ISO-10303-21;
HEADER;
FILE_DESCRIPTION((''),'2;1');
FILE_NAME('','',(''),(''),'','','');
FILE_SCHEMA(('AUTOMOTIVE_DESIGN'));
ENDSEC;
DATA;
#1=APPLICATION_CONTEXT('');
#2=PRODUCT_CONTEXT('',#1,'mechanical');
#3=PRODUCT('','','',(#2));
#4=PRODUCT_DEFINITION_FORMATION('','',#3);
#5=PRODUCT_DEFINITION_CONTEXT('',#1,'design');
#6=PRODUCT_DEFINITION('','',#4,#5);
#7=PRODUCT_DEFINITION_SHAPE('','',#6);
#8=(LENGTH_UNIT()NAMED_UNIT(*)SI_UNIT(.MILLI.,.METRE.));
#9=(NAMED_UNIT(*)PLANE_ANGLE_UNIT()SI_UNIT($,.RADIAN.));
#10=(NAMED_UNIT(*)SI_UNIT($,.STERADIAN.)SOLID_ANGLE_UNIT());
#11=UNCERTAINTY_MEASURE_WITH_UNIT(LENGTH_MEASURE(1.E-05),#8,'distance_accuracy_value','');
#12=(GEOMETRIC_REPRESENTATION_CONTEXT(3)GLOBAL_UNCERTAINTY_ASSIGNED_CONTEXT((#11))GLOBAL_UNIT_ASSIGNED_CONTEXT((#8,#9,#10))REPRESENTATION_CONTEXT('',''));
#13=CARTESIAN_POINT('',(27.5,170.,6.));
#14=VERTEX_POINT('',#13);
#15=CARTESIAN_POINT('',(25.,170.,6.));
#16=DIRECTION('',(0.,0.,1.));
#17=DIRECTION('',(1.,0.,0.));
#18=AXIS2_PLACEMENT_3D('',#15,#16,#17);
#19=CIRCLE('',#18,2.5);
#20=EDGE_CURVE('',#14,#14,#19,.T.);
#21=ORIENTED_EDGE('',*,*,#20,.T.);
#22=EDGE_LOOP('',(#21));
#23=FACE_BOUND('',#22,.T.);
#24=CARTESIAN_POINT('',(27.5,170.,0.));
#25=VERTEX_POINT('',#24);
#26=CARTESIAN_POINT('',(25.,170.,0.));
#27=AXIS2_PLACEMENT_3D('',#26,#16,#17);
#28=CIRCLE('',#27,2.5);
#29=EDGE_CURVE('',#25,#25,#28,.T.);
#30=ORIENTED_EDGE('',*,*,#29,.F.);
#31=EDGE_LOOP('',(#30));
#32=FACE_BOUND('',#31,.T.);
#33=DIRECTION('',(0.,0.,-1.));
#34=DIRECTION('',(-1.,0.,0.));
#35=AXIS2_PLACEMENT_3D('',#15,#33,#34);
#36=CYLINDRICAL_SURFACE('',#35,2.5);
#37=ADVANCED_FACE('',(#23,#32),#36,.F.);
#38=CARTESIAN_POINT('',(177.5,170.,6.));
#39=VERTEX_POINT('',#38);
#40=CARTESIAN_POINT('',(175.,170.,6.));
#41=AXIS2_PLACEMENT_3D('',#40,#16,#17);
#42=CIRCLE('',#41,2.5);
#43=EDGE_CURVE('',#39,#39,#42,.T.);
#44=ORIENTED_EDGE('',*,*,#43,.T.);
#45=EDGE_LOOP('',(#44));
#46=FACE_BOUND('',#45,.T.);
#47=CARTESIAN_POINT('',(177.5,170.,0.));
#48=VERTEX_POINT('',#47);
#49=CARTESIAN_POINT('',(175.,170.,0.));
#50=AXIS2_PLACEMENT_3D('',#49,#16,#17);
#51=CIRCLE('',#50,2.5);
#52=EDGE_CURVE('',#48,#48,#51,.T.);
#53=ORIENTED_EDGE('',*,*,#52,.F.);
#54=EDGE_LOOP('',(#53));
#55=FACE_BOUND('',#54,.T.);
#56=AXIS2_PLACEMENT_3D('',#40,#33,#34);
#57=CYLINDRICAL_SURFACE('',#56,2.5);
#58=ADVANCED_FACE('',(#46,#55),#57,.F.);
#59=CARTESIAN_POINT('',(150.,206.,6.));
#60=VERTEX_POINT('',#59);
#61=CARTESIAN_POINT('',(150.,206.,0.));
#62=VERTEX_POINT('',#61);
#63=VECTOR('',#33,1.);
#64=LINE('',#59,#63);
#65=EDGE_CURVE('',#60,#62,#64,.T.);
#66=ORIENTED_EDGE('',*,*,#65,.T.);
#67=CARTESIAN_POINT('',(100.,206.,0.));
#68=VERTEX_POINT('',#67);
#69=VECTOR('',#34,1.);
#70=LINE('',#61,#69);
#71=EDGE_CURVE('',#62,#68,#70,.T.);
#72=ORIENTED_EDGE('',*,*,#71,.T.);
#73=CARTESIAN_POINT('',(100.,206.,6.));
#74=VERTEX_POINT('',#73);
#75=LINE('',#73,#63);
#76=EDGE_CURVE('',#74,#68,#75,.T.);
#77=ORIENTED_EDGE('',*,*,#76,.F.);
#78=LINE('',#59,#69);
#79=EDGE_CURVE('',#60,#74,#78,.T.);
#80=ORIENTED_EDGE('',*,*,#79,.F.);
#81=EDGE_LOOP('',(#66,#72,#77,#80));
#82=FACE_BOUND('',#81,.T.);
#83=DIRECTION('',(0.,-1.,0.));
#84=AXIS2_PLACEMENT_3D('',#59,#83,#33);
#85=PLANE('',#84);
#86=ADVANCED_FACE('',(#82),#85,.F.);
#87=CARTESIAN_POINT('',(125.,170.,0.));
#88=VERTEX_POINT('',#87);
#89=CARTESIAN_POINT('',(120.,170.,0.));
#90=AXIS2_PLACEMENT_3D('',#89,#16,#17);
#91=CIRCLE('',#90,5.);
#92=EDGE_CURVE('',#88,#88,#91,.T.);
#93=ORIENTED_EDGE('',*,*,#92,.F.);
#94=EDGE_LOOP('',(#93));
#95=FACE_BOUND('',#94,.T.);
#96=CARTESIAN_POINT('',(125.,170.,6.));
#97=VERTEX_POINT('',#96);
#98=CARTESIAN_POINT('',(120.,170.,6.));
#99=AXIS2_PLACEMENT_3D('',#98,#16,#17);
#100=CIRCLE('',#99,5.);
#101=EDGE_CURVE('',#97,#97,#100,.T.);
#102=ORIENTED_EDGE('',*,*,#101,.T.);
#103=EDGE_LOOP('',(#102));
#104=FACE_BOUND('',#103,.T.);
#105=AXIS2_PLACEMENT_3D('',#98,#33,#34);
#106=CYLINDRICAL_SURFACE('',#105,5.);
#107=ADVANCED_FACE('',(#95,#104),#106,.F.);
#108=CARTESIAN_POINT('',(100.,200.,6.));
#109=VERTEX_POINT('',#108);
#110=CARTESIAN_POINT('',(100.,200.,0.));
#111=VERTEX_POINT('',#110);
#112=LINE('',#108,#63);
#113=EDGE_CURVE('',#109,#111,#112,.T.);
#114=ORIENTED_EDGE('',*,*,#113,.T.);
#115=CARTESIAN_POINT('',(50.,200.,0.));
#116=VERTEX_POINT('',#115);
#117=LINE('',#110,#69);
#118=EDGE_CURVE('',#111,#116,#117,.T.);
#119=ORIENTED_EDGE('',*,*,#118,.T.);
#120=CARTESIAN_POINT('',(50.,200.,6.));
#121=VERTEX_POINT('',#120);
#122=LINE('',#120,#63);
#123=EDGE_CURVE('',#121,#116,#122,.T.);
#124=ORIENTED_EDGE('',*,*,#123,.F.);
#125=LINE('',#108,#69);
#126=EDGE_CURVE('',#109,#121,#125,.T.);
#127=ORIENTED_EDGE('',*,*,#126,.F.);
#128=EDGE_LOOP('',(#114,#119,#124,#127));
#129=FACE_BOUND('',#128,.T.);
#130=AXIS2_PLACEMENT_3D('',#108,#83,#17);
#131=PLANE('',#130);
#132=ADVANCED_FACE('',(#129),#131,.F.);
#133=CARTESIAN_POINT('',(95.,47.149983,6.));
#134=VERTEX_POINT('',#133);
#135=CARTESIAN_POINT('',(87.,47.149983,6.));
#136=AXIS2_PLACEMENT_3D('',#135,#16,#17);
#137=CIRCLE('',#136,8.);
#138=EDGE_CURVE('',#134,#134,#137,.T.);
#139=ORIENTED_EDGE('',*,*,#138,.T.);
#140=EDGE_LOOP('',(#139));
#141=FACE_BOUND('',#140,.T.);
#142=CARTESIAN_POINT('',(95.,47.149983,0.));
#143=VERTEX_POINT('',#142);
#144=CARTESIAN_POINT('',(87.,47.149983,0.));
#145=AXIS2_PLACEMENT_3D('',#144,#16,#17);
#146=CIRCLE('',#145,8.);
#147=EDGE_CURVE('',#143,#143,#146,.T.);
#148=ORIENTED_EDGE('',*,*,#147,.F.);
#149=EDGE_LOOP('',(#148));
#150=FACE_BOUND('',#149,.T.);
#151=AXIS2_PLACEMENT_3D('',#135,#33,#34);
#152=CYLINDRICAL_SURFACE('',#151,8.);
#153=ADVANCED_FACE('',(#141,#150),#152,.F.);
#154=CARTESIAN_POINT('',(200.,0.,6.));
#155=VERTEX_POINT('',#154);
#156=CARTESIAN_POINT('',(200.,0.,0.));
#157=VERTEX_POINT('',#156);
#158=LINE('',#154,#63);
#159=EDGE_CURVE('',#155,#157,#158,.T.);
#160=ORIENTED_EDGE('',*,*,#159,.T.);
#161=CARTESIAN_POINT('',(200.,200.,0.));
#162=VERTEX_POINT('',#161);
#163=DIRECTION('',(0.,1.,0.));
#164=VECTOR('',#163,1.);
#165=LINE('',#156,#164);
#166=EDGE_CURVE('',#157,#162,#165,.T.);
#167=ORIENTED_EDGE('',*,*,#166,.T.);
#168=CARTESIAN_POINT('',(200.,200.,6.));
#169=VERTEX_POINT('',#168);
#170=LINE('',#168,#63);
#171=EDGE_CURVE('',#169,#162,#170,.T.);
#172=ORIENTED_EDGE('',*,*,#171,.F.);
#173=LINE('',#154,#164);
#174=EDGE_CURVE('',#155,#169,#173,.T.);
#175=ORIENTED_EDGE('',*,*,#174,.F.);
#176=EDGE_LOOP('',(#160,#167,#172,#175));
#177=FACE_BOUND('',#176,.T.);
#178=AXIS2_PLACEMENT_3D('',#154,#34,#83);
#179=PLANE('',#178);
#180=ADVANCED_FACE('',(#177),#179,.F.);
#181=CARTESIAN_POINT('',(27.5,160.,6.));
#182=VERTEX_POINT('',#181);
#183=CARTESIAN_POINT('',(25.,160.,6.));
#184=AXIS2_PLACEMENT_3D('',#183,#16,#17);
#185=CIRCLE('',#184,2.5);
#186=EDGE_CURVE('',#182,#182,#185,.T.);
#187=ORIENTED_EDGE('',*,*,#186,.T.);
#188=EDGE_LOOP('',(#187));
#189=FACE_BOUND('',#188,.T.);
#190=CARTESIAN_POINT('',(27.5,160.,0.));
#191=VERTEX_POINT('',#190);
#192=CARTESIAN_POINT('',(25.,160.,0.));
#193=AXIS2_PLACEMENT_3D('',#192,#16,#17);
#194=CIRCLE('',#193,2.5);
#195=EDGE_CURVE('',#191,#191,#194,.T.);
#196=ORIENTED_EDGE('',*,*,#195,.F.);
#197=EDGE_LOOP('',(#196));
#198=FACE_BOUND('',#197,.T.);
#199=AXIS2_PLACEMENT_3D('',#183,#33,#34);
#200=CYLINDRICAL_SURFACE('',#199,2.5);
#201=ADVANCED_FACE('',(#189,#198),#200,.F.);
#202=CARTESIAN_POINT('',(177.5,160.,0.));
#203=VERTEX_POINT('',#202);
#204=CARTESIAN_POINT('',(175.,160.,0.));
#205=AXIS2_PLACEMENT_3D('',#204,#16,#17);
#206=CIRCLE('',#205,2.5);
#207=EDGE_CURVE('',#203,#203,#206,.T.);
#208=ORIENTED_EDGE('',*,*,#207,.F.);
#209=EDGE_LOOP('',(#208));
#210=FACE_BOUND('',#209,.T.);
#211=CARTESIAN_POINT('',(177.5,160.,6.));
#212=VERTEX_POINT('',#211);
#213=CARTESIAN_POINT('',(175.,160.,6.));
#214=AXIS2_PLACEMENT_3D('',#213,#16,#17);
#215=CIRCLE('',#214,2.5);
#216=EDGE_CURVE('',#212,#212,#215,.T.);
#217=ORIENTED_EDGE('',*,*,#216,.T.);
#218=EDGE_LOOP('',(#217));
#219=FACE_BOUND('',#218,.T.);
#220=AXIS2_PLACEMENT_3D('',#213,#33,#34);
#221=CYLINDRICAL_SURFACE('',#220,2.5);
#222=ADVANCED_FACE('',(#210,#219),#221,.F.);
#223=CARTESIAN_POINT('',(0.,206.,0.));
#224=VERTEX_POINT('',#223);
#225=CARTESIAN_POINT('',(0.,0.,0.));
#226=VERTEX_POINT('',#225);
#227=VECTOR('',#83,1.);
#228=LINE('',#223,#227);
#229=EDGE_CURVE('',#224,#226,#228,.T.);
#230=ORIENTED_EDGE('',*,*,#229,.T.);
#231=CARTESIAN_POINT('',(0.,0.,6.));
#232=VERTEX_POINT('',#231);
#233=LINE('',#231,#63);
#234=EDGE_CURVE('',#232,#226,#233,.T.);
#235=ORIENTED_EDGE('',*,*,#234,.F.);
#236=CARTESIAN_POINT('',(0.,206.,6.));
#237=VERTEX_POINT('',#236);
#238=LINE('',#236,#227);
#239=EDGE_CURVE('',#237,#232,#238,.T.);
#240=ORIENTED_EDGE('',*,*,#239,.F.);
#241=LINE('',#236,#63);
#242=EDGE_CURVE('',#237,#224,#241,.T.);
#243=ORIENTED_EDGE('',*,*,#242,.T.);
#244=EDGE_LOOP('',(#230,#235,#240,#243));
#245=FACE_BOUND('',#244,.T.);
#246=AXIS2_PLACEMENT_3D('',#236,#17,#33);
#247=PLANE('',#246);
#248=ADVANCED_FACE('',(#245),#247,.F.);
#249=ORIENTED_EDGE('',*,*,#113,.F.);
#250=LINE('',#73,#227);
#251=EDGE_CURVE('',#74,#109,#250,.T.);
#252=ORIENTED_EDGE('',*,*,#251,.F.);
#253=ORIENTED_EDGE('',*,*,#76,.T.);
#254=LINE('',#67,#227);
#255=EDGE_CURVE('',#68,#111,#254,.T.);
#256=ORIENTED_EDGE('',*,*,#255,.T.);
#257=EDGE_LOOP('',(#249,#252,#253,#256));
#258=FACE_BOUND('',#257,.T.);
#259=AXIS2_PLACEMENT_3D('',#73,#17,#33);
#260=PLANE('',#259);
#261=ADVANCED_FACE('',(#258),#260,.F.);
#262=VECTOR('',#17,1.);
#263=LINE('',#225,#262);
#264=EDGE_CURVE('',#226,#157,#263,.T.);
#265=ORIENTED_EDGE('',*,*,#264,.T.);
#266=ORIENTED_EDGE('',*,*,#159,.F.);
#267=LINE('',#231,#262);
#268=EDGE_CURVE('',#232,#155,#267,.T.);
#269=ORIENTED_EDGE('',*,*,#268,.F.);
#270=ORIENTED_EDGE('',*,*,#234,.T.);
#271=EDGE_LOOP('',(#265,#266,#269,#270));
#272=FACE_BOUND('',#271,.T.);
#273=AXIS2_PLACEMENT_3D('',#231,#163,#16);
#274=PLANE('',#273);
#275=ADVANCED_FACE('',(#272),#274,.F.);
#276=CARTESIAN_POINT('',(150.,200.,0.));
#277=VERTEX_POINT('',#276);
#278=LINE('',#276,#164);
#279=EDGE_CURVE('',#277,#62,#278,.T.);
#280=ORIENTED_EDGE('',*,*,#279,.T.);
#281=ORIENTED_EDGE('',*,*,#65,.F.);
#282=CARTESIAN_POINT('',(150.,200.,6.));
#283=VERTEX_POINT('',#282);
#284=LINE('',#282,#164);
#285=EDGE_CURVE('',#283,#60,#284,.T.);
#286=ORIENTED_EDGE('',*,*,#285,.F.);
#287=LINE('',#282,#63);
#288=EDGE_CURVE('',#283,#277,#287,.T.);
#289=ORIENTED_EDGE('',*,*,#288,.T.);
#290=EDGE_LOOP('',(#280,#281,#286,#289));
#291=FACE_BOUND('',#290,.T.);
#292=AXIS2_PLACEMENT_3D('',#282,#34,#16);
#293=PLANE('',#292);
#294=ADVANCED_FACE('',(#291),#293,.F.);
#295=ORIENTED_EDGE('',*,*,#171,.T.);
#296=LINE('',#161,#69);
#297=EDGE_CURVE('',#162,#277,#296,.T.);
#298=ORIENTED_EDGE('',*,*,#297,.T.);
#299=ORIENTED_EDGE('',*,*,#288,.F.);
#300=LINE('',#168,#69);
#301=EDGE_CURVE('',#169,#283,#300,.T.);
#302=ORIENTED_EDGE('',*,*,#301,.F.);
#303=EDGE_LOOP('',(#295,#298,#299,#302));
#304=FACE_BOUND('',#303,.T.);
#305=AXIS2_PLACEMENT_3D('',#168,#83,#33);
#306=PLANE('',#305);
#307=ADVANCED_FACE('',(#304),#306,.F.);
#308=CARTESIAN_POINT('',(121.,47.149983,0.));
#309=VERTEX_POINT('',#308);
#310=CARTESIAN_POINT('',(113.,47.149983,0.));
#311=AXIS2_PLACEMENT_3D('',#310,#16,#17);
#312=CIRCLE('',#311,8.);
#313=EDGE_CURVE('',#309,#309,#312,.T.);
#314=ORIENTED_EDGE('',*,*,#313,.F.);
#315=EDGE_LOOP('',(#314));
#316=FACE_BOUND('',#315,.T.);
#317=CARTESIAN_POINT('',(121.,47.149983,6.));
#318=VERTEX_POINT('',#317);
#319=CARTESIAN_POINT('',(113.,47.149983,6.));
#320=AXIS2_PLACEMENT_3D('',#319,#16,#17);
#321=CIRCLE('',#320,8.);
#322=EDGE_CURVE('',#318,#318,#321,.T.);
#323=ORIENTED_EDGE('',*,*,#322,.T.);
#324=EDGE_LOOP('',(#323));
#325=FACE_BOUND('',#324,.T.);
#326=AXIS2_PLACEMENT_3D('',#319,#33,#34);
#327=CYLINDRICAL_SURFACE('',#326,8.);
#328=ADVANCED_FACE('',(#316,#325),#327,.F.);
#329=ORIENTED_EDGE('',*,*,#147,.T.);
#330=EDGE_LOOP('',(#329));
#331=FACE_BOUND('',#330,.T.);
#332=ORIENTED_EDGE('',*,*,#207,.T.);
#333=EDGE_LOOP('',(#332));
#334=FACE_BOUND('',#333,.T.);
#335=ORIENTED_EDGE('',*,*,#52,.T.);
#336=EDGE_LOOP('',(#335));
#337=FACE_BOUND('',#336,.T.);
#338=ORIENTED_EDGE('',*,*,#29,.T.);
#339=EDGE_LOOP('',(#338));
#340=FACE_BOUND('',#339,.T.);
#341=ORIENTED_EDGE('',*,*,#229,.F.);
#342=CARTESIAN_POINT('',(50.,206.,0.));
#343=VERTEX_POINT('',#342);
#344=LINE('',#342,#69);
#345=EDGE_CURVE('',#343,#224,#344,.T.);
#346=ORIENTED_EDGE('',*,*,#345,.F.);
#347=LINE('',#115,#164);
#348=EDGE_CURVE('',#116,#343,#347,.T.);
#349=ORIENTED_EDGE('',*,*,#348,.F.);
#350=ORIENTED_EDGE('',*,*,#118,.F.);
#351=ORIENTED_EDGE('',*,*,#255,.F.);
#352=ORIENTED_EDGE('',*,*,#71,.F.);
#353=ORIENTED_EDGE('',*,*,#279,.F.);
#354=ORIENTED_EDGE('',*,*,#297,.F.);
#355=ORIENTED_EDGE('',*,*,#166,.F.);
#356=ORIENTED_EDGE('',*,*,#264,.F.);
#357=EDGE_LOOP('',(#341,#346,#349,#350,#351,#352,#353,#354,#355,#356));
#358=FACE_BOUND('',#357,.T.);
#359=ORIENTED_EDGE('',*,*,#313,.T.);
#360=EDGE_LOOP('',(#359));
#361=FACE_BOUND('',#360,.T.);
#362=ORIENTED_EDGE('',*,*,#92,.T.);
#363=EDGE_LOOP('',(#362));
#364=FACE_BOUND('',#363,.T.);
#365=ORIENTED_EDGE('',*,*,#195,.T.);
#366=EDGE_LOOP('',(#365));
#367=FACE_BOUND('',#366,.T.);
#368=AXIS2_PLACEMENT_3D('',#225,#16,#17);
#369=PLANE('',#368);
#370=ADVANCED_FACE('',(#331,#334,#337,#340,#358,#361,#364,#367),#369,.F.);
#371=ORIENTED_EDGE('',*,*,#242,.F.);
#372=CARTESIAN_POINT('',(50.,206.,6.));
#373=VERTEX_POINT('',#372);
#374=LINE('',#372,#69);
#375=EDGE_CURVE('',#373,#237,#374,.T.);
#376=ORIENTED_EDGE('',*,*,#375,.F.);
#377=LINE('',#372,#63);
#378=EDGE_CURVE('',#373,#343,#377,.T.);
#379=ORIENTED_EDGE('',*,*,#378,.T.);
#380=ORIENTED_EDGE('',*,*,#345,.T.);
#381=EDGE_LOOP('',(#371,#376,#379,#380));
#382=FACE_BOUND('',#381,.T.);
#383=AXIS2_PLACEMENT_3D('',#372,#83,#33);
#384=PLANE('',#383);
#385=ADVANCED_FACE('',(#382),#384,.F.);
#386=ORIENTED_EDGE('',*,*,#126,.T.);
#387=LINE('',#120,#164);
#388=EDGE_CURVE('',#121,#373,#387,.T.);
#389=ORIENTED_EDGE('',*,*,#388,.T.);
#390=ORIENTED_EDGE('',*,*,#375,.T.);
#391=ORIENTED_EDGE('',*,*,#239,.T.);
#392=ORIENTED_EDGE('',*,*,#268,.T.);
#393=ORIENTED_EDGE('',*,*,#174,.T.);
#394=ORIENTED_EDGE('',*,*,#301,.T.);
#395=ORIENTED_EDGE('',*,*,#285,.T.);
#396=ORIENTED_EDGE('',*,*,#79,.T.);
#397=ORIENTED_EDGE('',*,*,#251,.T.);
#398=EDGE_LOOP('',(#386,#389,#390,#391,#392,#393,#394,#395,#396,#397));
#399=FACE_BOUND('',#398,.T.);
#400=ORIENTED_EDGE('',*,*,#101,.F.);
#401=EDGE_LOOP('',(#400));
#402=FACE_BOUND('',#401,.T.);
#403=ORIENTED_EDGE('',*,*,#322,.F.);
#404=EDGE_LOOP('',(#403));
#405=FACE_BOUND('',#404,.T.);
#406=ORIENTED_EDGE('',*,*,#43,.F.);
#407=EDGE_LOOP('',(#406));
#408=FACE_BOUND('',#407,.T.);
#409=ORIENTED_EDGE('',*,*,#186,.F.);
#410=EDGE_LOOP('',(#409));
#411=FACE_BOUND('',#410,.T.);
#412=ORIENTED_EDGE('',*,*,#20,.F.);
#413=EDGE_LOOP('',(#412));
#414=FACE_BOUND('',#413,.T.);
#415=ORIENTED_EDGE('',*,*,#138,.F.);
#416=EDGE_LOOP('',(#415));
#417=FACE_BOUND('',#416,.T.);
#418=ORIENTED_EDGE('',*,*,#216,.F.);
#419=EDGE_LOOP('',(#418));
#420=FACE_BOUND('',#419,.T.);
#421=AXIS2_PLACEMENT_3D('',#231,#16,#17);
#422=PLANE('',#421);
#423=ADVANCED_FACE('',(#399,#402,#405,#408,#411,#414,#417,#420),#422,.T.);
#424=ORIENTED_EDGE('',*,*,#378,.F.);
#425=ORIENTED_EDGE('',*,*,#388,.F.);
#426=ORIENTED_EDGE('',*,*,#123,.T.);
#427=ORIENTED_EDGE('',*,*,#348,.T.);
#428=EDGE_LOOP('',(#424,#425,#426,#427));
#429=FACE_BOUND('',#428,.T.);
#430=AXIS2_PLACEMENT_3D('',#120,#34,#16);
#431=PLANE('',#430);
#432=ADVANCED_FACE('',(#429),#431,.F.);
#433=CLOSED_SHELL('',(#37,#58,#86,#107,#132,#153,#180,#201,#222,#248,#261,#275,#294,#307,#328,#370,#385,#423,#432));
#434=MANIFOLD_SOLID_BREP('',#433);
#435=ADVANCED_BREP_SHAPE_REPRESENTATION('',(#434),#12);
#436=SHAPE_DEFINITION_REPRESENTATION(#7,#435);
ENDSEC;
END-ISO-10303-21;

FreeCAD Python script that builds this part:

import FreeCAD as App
import Part
import Sketcher
from FreeCAD import Vector
Q = App.Units.Quantity

doc = App.newDocument("Part")
params = doc.addObject("Spreadsheet::Sheet", "Params")
for row, (alias, value) in enumerate([
    ("sketch1_diameter", "16 mm"),
    ("sketch1_diameter2", "5 mm"),
    ("sketch1_diameter3", "10 mm"),
    ("sketch1_width", "200 mm"),
    ("sketch1_height", "6 mm"),
    ("pad1_length", "6 mm"),
], start=1):
    params.set(f"A{row}", alias)
    params.set(f"B{row}", "=" + value)
    params.setAlias(f"B{row}", alias)

body = doc.addObject("PartDesign::Body", "Body")

sketch1 = doc.addObject("Sketcher::SketchObject", "Sketch")
body.addObject(sketch1)
sketch1.AttachmentSupport = (doc.XY_Plane, [""])
sketch1.MapMode = "FlatFace"
sketch1.addGeometry([
    Part.LineSegment(Vector(0, 0, 0), Vector(200, 0, 0)),
    Part.LineSegment(Vector(200, 0, 0), Vector(200, 200, 0)),
    Part.LineSegment(Vector(200, 200, 0), Vector(150, 200, 0)),
    Part.LineSegment(Vector(150, 200, 0), Vector(150, 206, 0)),
    Part.LineSegment(Vector(150, 206, 0), Vector(100, 206, 0)),
    Part.LineSegment(Vector(100, 206, 0), Vector(100, 200, 0)),
    Part.LineSegment(Vector(100, 200, 0), Vector(50, 200, 0)),
    Part.LineSegment(Vector(50, 200, 0), Vector(50, 206, 0)),
    Part.LineSegment(Vector(50, 206, 0), Vector(0, 206, 0)),
    Part.LineSegment(Vector(0, 206, 0), Vector(0, 0, 0)),
    Part.Circle(Vector(87, 47.1, 0), Vector(0, 0, 1), 8),
    Part.Circle(Vector(113, 47.1, 0), Vector(0, 0, 1), 8),
    Part.Circle(Vector(25, 160, 0), Vector(0, 0, 1), 2.5),
    Part.Circle(Vector(25, 170, 0), Vector(0, 0, 1), 2.5),
    Part.Circle(Vector(120, 170, 0), Vector(0, 0, 1), 5),
    Part.Circle(Vector(175, 160, 0), Vector(0, 0, 1), 2.5),
    Part.Circle(Vector(175, 170, 0), Vector(0, 0, 1), 2.5),
], False)
sketch1.addConstraint([
    Sketcher.Constraint("Coincident", 0, 2, 1, 1),
    Sketcher.Constraint("Coincident", 1, 2, 2, 1),
    Sketcher.Constraint("Coincident", 2, 2, 3, 1),
    Sketcher.Constraint("Coincident", 3, 2, 4, 1),
    Sketcher.Constraint("Coincident", 4, 2, 5, 1),
    Sketcher.Constraint("Coincident", 5, 2, 6, 1),
    Sketcher.Constraint("Coincident", 6, 2, 7, 1),
    Sketcher.Constraint("Coincident", 7, 2, 8, 1),
    Sketcher.Constraint("Coincident", 8, 2, 9, 1),
    Sketcher.Constraint("Coincident", 9, 2, 0, 1),
    Sketcher.Constraint("Horizontal", 0),
    Sketcher.Constraint("Vertical", 1),
    Sketcher.Constraint("Horizontal", 2),
    Sketcher.Constraint("Vertical", 3),
    Sketcher.Constraint("Horizontal", 4),
    Sketcher.Constraint("Vertical", 5),
    Sketcher.Constraint("Horizontal", 6),
    Sketcher.Constraint("Vertical", 7),
    Sketcher.Constraint("Horizontal", 8),
    Sketcher.Constraint("Vertical", 9),
    Sketcher.Constraint("Coincident", 9, 2, -1, 1),
    Sketcher.Constraint("Equal", 10, 11),
    Sketcher.Constraint("Equal", 12, 13),
    Sketcher.Constraint("Equal", 13, 15),
    Sketcher.Constraint("Equal", 15, 16),
    Sketcher.Constraint("Horizontal", 10, 3, 11, 3),
    Sketcher.Constraint("Horizontal", 13, 3, 14, 3),
    Sketcher.Constraint("Horizontal", 12, 3, 15, 3),
    Sketcher.Constraint("Horizontal", 14, 3, 16, 3),
    Sketcher.Constraint("Horizontal", 2, 2, 5, 2),
    Sketcher.Constraint("Horizontal", 4, 2, 7, 2),
    Sketcher.Constraint("Vertical", 12, 3, 13, 3),
    Sketcher.Constraint("Vertical", 15, 3, 16, 3),
    Sketcher.Constraint("Equal", 2, 4),
    Sketcher.Constraint("Equal", 4, 6),
    Sketcher.Constraint("Equal", 6, 8),
    Sketcher.Constraint("Equal", 0, 1),
    Sketcher.Constraint("Diameter", 10, Q("16 mm")),
    Sketcher.Constraint("Diameter", 12, Q("5 mm")),
    Sketcher.Constraint("Diameter", 14, Q("10 mm")),
    Sketcher.Constraint("DistanceX", 0, 1, 0, 2, Q("200 mm")),
    Sketcher.Constraint("DistanceY", 3, 1, 3, 2, Q("6 mm")),
    Sketcher.Constraint("DistanceX", -1, 1, 10, 3, Q("87 mm")),
    Sketcher.Constraint("DistanceX", -1, 1, 11, 3, Q("113 mm")),
    Sketcher.Constraint("DistanceX", -1, 1, 12, 3, Q("25 mm")),
    Sketcher.Constraint("DistanceY", -1, 1, 12, 3, Q("160 mm")),
    Sketcher.Constraint("DistanceY", -1, 1, 13, 3, Q("170 mm")),
    Sketcher.Constraint("DistanceX", -1, 1, 14, 3, Q("120 mm")),
    Sketcher.Constraint("DistanceX", -1, 1, 15, 3, Q("175 mm")),
    Sketcher.Constraint("DistanceY", -1, 1, 10, 3, Q("47.149983 mm")),
])
sketch1.setExpression("Constraints[37]", "Params.sketch1_diameter")
sketch1.setExpression("Constraints[38]", "Params.sketch1_diameter2")
sketch1.setExpression("Constraints[39]", "Params.sketch1_diameter3")
sketch1.setExpression("Constraints[40]", "Params.sketch1_width")
sketch1.setExpression("Constraints[41]", "Params.sketch1_height")
pad1 = doc.addObject("PartDesign::Pad", "Pad")
body.addObject(pad1)
pad1.Profile = sketch1
pad1.setExpression("Length", "Params.pad1_length")

doc.recompute()
